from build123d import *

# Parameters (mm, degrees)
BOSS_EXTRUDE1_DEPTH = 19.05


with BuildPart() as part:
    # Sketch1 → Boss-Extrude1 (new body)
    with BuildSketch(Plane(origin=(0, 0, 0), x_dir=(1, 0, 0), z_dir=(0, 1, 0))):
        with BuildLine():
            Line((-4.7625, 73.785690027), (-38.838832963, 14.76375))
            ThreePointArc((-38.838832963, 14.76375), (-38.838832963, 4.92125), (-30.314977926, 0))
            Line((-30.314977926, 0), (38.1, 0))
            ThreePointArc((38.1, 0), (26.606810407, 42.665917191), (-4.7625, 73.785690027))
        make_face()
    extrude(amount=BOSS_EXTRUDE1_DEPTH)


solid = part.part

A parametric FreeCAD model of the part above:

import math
import FreeCAD as App
import Part
import Sketcher
from FreeCAD import Vector
Q = App.Units.Quantity

doc = App.newDocument("Part")
body = doc.addObject("PartDesign::Body", "Body")

# Sketch on XZ plane
sketch1 = doc.addObject("Sketcher::SketchObject", "Sketch")
body.addObject(sketch1)
sketch1.AttachmentSupport = (doc.XZ_Plane, [""])
sketch1.MapMode = "FlatFace"
sketch1.addGeometry([
    Part.LineSegment(Vector(-5, -74, 0), Vector(-39, -15, 0)),
    Part.ArcOfCircle(Part.Circle(Vector(-30, -10, 0), Vector(0, 0, 1), 10), math.radians(90), math.radians(210)),
    Part.LineSegment(Vector(-30, 0, 0), Vector(38, 0, 0)),
    Part.ArcOfCircle(Part.Circle(Vector(-47, 0, 0), Vector(0, 0, 1), 85), math.radians(-60), math.radians(0)),
], False)
sketch1.addConstraint([
    Sketcher.Constraint("Tangent", 0, 2, 1, 2),
    Sketcher.Constraint("Tangent", 1, 1, 2, 1),
    Sketcher.Constraint("Coincident", 2, 2, 3, 2),
    Sketcher.Constraint("Coincident", 3, 1, 0, 1),
    Sketcher.Constraint("Horizontal", 2),
    Sketcher.Constraint("PointOnObject", 3, 3, -1),
    Sketcher.Constraint("PointOnObject", 1, 1, -1),
    Sketcher.Constraint("Angle", 0, Q("120 deg")),
    Sketcher.Constraint("DistanceX", -1, 1, 2, 2, Q("1.5 in")),
    Sketcher.Constraint("Radius", 1, Q("0.3875 in")),
    Sketcher.Constraint("DistanceX", 3, 1, -1, 1, Q("0.1875 in")),
    Sketcher.Constraint("Radius", 3, 84.940472),
])
pad1 = doc.addObject("PartDesign::Pad", "Pad")
body.addObject(pad1)
pad1.Profile = sketch1
pad1.Length = Q("0.75 in")
pad1.Reversed = True

doc.recompute()
